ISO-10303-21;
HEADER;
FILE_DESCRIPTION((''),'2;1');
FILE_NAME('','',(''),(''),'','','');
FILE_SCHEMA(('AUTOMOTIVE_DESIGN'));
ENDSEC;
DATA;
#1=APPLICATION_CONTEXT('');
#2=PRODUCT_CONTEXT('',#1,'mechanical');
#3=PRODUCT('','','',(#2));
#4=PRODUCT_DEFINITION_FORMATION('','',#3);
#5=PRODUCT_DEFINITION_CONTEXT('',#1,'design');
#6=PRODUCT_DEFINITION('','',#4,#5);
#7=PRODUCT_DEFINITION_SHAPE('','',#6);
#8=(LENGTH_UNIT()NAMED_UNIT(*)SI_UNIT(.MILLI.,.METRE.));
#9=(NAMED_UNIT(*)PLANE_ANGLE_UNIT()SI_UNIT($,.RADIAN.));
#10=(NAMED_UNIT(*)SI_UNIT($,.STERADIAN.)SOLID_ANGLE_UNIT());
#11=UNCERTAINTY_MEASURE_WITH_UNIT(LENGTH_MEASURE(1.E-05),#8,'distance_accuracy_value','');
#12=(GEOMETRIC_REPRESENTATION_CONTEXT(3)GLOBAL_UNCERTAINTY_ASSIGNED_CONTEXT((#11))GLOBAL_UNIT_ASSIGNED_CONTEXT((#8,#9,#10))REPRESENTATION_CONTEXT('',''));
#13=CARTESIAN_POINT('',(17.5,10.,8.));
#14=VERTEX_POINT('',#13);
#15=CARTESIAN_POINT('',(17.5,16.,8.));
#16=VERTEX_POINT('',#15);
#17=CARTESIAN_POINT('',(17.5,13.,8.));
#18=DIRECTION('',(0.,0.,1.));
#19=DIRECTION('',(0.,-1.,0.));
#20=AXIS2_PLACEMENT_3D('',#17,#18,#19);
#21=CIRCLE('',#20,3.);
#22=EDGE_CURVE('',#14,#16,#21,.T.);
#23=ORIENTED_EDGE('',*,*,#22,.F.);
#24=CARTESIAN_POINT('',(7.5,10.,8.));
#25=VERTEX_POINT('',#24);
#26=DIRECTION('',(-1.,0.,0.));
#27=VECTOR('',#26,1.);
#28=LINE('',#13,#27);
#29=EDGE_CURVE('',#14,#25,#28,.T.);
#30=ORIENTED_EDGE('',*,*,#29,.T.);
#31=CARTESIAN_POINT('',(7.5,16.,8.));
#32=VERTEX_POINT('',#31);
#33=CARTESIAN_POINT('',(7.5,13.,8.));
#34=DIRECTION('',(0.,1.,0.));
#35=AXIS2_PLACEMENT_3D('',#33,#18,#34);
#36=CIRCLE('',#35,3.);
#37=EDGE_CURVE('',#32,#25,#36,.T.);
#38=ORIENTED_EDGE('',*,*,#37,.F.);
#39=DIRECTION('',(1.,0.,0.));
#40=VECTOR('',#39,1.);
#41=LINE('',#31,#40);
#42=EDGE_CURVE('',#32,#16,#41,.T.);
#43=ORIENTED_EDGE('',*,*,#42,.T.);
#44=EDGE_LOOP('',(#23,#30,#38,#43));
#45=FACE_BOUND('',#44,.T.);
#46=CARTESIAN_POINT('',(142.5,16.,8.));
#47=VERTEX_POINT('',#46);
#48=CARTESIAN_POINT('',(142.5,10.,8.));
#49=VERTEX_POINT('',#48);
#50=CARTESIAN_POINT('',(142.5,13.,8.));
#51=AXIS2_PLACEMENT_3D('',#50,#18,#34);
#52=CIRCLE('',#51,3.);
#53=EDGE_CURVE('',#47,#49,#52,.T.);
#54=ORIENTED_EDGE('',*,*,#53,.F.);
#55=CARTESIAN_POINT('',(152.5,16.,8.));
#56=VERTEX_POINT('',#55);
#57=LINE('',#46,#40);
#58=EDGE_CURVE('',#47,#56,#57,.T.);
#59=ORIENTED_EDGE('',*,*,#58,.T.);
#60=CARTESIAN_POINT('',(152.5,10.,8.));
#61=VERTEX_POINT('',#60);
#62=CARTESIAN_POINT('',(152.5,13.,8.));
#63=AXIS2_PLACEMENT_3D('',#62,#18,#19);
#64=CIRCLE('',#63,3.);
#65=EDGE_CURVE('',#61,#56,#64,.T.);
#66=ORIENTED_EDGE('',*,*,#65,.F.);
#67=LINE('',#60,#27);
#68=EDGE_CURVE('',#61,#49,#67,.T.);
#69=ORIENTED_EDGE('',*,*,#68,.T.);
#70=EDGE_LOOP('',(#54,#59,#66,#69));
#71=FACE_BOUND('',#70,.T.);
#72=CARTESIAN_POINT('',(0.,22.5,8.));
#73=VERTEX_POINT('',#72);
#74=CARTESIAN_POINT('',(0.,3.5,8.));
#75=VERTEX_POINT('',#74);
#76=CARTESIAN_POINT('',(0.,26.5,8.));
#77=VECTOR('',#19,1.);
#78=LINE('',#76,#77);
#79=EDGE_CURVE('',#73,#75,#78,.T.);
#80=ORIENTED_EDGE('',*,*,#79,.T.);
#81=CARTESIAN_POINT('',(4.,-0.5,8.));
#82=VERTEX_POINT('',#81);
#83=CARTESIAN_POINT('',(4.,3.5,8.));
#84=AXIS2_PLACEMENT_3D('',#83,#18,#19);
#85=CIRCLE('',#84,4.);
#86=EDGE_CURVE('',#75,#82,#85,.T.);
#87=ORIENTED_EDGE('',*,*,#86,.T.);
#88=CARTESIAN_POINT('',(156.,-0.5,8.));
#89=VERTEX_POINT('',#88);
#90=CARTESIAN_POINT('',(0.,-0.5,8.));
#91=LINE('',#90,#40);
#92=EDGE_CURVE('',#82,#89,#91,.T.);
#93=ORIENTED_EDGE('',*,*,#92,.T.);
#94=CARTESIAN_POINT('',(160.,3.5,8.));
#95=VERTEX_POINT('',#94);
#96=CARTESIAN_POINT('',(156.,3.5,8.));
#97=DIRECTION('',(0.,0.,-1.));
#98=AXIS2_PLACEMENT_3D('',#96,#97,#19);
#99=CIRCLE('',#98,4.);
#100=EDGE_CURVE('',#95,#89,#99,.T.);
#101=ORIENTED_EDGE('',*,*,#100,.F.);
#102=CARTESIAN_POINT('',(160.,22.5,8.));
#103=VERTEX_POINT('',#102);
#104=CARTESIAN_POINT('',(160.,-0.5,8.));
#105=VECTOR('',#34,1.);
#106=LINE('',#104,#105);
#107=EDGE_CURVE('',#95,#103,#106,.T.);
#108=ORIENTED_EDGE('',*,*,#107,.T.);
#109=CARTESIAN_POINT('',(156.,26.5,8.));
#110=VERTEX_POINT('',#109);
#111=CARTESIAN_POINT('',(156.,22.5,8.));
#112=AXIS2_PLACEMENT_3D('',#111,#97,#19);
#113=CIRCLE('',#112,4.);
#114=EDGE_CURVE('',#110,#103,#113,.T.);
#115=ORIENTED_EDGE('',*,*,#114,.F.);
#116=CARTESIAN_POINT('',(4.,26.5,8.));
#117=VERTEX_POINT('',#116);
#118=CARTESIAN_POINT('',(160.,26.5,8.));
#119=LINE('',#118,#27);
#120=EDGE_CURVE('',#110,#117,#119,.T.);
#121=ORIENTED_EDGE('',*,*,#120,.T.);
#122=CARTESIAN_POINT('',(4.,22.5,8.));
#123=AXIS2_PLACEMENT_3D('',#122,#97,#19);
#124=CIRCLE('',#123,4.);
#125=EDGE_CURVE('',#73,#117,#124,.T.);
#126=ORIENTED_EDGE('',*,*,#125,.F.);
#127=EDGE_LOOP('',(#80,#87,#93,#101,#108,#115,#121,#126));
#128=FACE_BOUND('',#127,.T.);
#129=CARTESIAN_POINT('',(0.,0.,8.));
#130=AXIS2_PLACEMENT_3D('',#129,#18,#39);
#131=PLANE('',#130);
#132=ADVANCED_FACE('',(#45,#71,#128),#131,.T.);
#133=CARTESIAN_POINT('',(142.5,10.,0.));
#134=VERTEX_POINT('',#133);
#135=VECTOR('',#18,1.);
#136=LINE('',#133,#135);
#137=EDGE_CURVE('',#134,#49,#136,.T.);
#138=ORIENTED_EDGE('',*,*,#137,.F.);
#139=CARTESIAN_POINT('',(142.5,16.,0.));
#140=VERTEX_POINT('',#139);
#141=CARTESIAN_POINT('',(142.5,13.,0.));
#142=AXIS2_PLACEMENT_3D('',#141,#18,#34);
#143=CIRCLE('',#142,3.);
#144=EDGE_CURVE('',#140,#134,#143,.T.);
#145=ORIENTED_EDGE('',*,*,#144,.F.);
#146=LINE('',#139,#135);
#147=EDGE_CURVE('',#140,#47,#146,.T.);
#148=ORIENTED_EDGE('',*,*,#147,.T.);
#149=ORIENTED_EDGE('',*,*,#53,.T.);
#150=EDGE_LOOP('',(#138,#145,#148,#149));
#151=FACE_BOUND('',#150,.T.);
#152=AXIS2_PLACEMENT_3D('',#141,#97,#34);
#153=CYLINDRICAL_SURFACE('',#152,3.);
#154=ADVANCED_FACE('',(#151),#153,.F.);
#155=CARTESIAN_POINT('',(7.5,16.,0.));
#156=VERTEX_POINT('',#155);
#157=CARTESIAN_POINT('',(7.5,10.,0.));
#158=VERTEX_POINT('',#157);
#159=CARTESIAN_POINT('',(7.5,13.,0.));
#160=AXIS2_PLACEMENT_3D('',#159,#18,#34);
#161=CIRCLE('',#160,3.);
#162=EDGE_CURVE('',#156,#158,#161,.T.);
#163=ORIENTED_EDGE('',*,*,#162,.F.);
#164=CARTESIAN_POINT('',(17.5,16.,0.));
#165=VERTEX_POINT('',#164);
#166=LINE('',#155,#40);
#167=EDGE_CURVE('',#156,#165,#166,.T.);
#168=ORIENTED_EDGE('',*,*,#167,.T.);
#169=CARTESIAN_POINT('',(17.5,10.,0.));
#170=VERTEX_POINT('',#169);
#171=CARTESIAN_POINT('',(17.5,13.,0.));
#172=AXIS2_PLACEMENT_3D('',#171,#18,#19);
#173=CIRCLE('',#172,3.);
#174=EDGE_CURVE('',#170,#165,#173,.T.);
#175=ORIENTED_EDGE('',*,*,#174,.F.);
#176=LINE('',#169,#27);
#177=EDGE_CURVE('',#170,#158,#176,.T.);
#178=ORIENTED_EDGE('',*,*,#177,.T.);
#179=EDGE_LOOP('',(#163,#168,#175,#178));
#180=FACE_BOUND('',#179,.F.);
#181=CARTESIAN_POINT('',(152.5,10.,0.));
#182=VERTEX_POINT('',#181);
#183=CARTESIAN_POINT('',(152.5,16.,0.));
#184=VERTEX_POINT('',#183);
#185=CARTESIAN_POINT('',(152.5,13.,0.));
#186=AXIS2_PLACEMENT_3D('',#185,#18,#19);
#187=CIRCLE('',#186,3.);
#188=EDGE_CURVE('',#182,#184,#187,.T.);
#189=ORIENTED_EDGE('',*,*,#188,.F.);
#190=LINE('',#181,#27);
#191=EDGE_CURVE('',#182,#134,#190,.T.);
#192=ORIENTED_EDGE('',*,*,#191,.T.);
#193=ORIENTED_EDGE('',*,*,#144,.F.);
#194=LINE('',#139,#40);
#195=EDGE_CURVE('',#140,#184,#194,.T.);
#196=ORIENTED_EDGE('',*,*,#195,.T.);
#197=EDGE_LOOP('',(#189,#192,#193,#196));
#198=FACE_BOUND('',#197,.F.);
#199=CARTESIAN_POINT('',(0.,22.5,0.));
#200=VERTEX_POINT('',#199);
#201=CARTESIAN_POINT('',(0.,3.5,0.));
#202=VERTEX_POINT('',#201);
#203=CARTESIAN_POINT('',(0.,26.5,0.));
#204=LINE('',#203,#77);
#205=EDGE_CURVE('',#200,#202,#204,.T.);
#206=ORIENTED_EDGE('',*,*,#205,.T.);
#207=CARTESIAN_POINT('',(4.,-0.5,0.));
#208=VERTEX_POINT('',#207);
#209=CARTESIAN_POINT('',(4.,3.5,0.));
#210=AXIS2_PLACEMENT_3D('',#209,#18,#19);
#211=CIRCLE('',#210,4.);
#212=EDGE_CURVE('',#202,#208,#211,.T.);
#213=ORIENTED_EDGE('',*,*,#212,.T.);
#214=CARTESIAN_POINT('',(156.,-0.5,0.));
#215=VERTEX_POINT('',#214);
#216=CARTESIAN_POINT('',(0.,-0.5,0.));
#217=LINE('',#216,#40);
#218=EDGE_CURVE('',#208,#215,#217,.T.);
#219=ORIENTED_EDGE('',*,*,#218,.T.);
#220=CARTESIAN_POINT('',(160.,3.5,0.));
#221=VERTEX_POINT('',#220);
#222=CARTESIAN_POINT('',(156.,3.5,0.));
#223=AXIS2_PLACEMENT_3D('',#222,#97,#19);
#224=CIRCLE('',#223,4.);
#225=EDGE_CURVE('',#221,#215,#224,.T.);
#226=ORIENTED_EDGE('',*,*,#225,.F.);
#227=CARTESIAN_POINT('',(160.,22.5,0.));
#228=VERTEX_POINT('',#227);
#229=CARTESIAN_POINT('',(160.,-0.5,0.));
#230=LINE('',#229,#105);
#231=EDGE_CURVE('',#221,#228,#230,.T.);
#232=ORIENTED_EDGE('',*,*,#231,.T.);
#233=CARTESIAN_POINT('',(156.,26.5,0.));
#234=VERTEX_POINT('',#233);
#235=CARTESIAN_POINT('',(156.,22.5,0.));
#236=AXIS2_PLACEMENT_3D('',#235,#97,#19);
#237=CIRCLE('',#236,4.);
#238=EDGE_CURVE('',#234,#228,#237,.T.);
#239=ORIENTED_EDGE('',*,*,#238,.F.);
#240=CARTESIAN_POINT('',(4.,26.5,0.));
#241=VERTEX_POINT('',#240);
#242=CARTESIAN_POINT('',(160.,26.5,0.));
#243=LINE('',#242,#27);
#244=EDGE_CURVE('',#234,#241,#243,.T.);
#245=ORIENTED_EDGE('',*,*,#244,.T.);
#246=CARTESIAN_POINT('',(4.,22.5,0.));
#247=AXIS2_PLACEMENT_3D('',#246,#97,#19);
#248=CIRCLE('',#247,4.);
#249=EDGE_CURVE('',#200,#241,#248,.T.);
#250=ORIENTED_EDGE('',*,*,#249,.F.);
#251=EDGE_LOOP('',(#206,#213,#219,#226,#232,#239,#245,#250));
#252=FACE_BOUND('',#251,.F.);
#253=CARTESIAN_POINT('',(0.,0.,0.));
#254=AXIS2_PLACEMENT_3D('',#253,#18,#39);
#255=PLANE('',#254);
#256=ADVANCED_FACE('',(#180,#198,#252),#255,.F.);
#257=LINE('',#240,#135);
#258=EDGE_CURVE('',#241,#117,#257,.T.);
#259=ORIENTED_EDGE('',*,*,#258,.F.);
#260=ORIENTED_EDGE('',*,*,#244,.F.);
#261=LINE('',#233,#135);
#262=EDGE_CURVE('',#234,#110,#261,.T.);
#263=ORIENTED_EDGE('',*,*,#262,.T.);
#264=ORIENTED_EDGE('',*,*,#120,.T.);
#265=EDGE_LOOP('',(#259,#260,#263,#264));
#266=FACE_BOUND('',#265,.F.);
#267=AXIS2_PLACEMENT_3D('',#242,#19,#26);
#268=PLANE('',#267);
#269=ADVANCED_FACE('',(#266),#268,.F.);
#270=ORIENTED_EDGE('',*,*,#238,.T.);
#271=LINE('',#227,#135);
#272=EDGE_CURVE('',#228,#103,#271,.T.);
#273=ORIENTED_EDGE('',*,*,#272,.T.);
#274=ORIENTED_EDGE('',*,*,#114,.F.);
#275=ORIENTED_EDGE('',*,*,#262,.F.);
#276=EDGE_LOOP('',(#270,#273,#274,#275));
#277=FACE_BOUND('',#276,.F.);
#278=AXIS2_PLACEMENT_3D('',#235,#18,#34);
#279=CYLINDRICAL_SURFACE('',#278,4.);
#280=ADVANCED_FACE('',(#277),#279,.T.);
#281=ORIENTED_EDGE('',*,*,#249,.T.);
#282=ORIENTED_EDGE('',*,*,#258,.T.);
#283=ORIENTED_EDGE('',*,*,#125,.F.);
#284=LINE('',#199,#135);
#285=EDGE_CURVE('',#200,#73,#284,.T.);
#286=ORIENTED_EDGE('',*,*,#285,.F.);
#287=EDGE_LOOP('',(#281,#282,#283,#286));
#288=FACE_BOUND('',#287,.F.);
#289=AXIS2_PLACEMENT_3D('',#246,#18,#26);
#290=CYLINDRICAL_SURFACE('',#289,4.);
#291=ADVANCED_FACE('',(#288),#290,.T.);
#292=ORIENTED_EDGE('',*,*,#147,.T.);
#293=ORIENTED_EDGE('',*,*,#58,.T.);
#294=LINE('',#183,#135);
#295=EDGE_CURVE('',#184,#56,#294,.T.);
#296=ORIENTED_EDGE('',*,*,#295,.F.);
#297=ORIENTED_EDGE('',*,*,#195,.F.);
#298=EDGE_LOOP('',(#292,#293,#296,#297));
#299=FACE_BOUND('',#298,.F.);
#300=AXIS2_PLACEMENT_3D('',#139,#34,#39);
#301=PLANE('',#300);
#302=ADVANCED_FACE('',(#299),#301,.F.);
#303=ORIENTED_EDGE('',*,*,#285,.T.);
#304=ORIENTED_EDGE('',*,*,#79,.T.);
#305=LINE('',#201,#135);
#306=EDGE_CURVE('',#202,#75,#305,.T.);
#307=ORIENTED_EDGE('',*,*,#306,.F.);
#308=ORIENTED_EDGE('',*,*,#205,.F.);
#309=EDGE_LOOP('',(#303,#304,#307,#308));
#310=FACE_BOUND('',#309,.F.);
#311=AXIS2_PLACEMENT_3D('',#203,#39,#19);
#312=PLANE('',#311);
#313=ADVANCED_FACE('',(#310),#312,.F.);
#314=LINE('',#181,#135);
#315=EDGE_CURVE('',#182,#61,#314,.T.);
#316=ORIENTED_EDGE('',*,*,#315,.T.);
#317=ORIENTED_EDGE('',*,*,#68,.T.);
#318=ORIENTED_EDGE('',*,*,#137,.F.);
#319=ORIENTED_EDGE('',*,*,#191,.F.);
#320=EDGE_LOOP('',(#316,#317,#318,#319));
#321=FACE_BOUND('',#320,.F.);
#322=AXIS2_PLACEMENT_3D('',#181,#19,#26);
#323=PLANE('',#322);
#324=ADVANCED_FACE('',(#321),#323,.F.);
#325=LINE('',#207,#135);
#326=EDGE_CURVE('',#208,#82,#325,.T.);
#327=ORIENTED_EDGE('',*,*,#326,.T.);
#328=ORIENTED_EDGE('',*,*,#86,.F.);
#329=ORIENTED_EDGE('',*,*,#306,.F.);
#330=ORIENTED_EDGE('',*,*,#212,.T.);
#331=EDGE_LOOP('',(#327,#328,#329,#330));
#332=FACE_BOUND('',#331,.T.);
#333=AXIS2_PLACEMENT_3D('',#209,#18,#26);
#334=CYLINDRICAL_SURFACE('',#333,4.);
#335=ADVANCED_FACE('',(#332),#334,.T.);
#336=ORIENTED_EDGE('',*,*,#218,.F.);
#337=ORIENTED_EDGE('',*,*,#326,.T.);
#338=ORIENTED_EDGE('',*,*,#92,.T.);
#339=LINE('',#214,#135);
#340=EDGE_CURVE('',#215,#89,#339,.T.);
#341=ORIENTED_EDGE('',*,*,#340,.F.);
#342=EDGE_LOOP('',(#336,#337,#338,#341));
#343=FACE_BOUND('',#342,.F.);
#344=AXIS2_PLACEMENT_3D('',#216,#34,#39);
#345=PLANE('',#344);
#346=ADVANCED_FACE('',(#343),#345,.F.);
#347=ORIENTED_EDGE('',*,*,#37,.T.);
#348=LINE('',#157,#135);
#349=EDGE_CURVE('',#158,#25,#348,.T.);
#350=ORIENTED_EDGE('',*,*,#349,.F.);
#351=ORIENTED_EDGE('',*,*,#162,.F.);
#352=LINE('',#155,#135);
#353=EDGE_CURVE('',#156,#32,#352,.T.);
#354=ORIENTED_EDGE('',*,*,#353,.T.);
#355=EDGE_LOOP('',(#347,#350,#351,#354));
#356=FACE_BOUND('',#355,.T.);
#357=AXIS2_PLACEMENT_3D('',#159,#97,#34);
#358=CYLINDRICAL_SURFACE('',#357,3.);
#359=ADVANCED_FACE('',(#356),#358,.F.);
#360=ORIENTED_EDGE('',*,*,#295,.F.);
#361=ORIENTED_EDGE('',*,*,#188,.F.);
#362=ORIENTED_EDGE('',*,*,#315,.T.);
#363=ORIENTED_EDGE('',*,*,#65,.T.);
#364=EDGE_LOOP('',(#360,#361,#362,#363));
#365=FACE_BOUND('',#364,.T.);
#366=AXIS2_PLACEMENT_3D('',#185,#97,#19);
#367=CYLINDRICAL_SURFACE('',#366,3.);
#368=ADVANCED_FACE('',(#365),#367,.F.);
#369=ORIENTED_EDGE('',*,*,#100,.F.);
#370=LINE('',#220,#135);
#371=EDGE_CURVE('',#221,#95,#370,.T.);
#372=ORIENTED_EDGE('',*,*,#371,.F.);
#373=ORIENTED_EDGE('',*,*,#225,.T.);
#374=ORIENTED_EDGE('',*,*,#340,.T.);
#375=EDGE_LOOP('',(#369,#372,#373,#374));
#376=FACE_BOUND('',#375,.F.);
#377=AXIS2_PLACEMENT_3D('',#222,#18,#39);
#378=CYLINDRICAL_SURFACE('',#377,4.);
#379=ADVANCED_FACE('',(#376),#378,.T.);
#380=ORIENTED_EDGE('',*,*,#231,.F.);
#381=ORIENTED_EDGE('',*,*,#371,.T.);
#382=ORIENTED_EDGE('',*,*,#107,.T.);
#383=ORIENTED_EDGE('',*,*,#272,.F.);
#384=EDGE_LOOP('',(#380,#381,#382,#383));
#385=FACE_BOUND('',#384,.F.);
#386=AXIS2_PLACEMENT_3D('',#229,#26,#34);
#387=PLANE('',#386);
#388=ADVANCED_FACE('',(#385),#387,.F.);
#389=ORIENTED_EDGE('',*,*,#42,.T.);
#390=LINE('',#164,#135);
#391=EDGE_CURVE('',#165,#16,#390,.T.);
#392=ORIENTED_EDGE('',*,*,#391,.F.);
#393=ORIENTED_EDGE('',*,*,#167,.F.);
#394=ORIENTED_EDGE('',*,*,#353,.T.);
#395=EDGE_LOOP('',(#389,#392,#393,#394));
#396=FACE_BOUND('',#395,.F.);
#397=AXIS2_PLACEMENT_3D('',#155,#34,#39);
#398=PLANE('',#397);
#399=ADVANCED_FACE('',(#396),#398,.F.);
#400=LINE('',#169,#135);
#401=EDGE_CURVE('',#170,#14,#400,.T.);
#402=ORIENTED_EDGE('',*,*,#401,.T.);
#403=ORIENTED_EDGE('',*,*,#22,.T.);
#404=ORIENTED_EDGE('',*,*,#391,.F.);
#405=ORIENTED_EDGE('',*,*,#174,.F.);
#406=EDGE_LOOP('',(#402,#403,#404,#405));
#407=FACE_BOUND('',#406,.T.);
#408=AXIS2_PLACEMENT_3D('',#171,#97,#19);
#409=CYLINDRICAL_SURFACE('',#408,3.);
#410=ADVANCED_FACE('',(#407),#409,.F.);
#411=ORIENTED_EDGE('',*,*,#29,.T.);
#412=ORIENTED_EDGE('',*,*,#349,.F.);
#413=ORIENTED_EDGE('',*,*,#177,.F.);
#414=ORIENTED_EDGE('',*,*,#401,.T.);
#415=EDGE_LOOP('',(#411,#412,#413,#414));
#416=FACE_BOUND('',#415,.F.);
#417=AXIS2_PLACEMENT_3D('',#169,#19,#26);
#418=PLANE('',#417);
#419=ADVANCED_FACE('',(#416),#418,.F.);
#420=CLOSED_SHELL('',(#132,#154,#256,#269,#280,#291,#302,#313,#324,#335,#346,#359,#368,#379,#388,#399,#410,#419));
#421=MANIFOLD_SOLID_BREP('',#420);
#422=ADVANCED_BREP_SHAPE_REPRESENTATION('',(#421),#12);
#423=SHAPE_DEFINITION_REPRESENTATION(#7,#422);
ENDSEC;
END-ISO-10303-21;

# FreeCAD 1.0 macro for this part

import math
import FreeCAD as App
import Part
import Sketcher


def edges_at(feature, points):
    """Names of the edges that pass closest to the given points."""
    edges = feature.Shape.Edges
    near = lambda p: min(range(len(edges)), key=lambda i: edges[i].distToShape(Part.Vertex(*p))[0])
    return sorted({f"Edge{near(p) + 1}" for p in points})

doc = App.newDocument("Part")
body = doc.addObject("PartDesign::Body", "Body")

sketch1 = doc.addObject("Sketcher::SketchObject", "Sketch")
body.addObject(sketch1)
sketch1.AttachmentSupport = (doc.XY_Plane, [""])
sketch1.MapMode = "FlatFace"
sketch1.addGeometry([
    Part.LineSegment(App.Vector(0, 26.5, 0), App.Vector(0, -0.5, 0)),
    Part.LineSegment(App.Vector(0, -0.5, 0), App.Vector(160, -0.5, 0)),
    Part.LineSegment(App.Vector(160, -0.5, 0), App.Vector(160, 26.5, 0)),
    Part.LineSegment(App.Vector(160, 26.5, 0), App.Vector(0, 26.5, 0)),
    Part.ArcOfCircle(Part.Circle(App.Vector(7.5, 13, 0), App.Vector(0, 0, 1), 3), math.radians(90), math.radians(270)),
    Part.LineSegment(App.Vector(7.5, 16, 0), App.Vector(17.5, 16, 0)),
    Part.ArcOfCircle(Part.Circle(App.Vector(17.5, 13, 0), App.Vector(0, 0, 1), 3), math.radians(-90), math.radians(90)),
    Part.LineSegment(App.Vector(17.5, 10, 0), App.Vector(7.5, 10, 0)),
    Part.ArcOfCircle(Part.Circle(App.Vector(152.5, 13, 0), App.Vector(0, 0, 1), 3), math.radians(-90), math.radians(90)),
    Part.LineSegment(App.Vector(152.5, 10, 0), App.Vector(142.5, 10, 0)),
    Part.ArcOfCircle(Part.Circle(App.Vector(142.5, 13, 0), App.Vector(0, 0, 1), 3), math.radians(90), math.radians(270)),
    Part.LineSegment(App.Vector(142.5, 16, 0), App.Vector(152.5, 16, 0)),
], False)
sketch1.addConstraint([
    Sketcher.Constraint("Coincident", 0, 2, 1, 1),
    Sketcher.Constraint("Coincident", 1, 2, 2, 1),
    Sketcher.Constraint("Coincident", 2, 2, 3, 1),
    Sketcher.Constraint("Coincident", 3, 2, 0, 1),
    Sketcher.Constraint("Tangent", 4, 1, 5, 1),
    Sketcher.Constraint("Tangent", 5, 2, 6, 2),
    Sketcher.Constraint("Tangent", 6, 1, 7, 1),
    Sketcher.Constraint("Tangent", 7, 2, 4, 2),
    Sketcher.Constraint("Tangent", 8, 1, 9, 1),
    Sketcher.Constraint("Tangent", 9, 2, 10, 2),
    Sketcher.Constraint("Tangent", 10, 1, 11, 1),
    Sketcher.Constraint("Tangent", 11, 2, 8, 2),
    Sketcher.Constraint("Vertical", 0),
    Sketcher.Constraint("Horizontal", 1),
    Sketcher.Constraint("Vertical", 2),
    Sketcher.Constraint("Horizontal", 3),
    Sketcher.Constraint("Horizontal", 5),
    Sketcher.Constraint("Horizontal", 7),
    Sketcher.Constraint("Horizontal", 9),
    Sketcher.Constraint("Horizontal", 11),
    Sketcher.Constraint("Equal", 6, 8),
    Sketcher.Constraint("PointOnObject", 0, 2, -2),
    Sketcher.Constraint("Horizontal", 6, 3, 8, 3),
    Sketcher.Constraint("Equal", 7, 9),
    Sketcher.Constraint("Radius", 4, 3.0),
    Sketcher.Constraint("DistanceX", 1, 1, 1, 2, 160.0),
    Sketcher.Constraint("DistanceX", 5, 1, 5, 2, 10.0),
    Sketcher.Constraint("DistanceY", 0, 2, 0, 1, 27.0),
    Sketcher.Constraint("DistanceY", -1, 1, 6, 1, 10.0),
    Sketcher.Constraint("DistanceY", 4, 1, 3, 2, 10.5),
    Sketcher.Constraint("DistanceX", 6, 3, 8, 3, 135.0),
    Sketcher.Constraint("DistanceX", -1, 1, 4, 3, 7.5),
])
pad1 = doc.addObject("PartDesign::Pad", "Pad")
body.addObject(pad1)
pad1.Profile = sketch1
pad1.Length = 8
doc.recompute()

fillet = doc.addObject("PartDesign::Fillet", "Fillet")
body.addObject(fillet)
fillet.Base = (pad1, edges_at(pad1, [
    (0, 26.5, 4),
    (0, -0.5, 4),
    (160, -0.5, 4),
    (160, 26.5, 4),
]))
fillet.Radius = 4

doc.recompute()
